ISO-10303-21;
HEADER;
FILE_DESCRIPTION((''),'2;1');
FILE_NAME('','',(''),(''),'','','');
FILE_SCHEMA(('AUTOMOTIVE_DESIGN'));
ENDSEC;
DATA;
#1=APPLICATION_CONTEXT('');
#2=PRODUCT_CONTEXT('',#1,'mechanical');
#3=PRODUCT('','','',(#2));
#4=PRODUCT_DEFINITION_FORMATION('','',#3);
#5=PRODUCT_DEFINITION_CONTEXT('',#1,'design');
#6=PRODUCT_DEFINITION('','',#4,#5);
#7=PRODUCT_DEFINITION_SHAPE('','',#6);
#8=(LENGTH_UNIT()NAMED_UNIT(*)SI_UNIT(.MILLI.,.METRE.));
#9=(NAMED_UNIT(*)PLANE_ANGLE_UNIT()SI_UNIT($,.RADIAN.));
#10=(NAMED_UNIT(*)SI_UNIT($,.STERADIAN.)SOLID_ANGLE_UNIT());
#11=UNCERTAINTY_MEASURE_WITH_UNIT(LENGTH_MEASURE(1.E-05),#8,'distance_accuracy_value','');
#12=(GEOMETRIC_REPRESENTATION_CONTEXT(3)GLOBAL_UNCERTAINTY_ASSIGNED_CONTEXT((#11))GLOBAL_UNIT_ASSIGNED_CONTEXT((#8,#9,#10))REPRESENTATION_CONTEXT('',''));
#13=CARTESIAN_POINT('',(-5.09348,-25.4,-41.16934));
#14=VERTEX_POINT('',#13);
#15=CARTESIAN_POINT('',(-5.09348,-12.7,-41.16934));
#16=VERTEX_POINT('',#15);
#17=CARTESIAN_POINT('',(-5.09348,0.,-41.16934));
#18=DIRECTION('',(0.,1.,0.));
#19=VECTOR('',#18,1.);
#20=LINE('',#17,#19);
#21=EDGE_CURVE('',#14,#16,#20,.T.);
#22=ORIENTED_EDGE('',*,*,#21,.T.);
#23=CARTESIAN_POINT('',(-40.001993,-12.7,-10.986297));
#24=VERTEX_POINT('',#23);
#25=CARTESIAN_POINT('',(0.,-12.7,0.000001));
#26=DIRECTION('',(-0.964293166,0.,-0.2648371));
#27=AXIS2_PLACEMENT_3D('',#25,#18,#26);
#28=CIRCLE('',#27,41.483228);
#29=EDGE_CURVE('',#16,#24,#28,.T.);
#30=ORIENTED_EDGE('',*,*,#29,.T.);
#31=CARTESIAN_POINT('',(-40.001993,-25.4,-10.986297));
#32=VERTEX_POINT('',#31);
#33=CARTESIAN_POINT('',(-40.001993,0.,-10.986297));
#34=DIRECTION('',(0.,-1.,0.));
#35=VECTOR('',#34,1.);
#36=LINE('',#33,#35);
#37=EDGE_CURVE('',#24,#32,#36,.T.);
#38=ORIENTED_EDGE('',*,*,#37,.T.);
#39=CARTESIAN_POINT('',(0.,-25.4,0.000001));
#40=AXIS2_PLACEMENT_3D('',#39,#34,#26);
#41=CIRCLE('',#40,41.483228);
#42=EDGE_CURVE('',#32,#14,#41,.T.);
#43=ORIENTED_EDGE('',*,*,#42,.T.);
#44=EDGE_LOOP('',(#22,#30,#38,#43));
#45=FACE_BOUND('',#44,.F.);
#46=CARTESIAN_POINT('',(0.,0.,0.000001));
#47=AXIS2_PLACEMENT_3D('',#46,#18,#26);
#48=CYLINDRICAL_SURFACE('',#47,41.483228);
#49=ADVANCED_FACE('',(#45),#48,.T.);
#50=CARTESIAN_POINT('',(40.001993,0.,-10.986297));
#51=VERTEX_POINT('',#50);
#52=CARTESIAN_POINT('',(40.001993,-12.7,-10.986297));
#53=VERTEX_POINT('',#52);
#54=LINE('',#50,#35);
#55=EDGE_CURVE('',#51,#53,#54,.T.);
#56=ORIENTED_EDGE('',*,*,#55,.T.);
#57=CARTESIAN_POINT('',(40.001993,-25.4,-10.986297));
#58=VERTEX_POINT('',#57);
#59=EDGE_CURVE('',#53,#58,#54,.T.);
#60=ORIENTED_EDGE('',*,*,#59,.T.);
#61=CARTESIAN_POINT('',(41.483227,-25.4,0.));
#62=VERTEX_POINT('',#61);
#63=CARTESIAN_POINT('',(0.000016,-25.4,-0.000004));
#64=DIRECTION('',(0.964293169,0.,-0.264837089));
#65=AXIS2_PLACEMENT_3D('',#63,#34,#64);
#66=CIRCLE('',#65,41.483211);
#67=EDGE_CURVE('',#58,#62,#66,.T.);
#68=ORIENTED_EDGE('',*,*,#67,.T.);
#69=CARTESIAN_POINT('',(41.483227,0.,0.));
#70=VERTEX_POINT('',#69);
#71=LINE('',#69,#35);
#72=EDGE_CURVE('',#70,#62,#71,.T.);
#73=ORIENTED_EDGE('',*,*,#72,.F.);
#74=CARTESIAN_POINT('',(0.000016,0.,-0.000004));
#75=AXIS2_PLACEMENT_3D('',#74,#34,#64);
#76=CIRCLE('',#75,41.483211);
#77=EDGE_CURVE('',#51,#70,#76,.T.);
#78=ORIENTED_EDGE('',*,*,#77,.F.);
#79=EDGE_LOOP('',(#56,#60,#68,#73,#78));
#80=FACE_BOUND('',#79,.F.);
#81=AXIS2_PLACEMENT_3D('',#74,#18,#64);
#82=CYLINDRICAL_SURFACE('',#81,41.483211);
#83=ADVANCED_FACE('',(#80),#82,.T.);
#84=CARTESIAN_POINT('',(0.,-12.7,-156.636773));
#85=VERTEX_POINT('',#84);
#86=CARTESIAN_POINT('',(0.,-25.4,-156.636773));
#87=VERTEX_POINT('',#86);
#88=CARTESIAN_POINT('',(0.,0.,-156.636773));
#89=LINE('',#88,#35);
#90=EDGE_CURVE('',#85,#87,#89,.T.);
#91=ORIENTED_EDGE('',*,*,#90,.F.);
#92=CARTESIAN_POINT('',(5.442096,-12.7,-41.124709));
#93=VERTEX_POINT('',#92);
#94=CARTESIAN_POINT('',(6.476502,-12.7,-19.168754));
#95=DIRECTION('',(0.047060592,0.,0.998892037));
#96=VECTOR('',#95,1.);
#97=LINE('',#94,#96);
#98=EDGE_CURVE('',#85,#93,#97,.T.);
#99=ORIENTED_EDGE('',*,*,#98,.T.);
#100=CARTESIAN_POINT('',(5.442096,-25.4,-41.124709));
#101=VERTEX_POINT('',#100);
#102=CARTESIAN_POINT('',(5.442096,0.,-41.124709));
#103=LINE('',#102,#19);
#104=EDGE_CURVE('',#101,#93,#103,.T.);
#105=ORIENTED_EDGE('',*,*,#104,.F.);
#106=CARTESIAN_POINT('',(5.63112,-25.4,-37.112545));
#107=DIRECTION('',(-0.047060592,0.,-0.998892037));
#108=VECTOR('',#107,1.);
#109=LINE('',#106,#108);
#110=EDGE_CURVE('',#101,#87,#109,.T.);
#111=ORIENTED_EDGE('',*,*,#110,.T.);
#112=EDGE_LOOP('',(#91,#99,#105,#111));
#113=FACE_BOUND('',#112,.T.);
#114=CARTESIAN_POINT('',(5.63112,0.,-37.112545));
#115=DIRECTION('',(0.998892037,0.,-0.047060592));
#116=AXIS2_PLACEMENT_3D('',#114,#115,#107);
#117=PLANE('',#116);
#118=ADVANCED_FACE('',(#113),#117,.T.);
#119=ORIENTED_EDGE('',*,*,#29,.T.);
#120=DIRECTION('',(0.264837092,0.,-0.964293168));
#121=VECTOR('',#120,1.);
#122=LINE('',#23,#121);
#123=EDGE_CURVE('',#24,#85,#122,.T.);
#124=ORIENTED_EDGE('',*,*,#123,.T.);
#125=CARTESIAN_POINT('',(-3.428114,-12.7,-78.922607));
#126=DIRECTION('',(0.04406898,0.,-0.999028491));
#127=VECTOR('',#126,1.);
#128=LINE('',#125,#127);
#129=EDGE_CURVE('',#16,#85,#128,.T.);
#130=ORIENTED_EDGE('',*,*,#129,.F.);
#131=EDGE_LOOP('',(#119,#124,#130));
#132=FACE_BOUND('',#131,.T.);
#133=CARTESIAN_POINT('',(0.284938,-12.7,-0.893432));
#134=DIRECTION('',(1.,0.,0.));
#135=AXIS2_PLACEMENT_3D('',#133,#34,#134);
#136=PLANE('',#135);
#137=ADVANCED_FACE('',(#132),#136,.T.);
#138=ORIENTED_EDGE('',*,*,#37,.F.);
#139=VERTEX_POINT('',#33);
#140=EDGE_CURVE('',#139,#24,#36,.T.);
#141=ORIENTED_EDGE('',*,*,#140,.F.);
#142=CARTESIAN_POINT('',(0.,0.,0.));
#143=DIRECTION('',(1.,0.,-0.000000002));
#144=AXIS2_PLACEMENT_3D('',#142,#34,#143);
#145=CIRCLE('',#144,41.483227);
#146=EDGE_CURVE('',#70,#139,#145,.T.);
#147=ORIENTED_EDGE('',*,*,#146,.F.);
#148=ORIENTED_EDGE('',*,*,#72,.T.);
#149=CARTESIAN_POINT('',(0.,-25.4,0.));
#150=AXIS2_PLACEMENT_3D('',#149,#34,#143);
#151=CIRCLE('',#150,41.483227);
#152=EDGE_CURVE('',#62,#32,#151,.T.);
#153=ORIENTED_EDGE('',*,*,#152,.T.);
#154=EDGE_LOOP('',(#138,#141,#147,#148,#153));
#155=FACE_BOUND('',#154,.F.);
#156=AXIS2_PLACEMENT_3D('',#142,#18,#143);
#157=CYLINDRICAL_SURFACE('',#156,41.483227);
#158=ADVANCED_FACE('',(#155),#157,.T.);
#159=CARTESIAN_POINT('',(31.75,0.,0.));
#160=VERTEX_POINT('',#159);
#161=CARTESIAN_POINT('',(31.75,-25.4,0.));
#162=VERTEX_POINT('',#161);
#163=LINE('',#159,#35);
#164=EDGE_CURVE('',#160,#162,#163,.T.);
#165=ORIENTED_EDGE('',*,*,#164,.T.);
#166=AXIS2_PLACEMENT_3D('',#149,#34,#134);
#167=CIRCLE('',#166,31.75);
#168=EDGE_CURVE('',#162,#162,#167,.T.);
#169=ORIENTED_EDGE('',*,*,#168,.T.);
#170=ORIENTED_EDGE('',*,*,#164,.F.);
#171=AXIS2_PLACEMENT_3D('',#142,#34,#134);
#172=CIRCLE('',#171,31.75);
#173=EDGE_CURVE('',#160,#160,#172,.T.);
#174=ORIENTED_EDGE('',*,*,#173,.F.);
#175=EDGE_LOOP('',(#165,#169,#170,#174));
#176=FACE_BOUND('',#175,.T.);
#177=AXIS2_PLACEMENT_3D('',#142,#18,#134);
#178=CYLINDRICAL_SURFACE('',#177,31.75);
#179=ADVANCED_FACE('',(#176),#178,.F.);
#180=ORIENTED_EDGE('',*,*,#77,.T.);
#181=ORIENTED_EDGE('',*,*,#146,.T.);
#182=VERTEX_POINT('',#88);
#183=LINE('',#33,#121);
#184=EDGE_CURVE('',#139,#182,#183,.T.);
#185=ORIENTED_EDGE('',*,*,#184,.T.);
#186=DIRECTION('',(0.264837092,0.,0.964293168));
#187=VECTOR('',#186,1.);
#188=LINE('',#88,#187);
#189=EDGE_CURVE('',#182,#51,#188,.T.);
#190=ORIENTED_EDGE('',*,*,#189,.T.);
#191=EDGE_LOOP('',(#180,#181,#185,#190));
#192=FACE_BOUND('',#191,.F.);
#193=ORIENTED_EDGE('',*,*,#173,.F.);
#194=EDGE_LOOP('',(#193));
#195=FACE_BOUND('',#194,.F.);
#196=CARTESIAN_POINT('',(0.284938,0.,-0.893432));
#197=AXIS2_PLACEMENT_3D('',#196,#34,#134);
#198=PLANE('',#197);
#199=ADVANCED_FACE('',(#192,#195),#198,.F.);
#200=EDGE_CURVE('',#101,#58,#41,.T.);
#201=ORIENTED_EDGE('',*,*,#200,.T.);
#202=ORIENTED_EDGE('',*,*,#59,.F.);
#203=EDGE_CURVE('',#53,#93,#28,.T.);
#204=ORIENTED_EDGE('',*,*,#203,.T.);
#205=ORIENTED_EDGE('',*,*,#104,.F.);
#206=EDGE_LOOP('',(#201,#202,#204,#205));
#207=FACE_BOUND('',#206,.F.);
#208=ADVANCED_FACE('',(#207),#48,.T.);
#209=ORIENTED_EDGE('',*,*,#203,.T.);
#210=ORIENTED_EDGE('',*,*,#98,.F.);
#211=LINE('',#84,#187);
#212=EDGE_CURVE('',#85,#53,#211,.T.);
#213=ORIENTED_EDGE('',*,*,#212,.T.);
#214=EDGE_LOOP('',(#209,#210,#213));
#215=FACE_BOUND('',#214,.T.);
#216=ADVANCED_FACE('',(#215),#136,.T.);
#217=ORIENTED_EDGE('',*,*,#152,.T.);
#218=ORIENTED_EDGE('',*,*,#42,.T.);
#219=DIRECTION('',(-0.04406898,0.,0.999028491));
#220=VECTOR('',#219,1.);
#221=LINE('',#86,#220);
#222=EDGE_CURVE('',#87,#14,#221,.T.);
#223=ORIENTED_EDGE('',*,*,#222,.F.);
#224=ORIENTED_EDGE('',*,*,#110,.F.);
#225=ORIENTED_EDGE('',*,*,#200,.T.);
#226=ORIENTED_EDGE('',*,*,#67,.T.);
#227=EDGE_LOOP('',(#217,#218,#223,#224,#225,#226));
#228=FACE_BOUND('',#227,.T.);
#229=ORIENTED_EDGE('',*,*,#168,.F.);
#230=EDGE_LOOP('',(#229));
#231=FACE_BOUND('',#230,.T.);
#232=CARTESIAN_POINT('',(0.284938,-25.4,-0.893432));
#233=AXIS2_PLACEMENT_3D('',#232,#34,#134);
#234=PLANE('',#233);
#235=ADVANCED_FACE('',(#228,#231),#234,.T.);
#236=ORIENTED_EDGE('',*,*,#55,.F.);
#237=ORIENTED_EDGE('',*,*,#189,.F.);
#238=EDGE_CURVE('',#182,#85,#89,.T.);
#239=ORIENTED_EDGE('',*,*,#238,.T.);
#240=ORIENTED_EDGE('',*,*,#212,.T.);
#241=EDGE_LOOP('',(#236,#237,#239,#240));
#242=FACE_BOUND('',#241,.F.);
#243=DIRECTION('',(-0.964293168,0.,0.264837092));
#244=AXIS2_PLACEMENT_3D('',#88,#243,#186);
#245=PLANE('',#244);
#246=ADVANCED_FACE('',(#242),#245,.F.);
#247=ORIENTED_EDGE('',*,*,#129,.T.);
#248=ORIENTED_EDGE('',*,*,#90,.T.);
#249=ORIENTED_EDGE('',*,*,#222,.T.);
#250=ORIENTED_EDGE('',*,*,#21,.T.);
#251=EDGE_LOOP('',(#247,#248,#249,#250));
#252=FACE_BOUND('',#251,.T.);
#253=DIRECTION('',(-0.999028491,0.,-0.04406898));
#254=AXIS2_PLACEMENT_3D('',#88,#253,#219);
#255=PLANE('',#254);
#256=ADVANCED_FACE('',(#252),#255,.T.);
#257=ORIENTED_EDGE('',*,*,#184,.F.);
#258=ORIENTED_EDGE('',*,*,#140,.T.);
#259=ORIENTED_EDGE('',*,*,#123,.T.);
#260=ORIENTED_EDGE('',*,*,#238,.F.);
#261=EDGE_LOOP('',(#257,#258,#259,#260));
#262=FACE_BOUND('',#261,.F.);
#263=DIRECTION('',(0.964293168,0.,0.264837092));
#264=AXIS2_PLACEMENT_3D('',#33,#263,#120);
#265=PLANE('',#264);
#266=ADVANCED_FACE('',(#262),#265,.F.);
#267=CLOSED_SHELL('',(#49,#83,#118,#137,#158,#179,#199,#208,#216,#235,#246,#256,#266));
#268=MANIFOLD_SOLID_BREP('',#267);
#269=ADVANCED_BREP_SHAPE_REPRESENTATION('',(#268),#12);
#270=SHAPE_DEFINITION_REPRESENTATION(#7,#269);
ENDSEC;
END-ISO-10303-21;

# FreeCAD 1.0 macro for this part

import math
import FreeCAD as App
import Part
import Sketcher
from FreeCAD import Vector
Q = App.Units.Quantity

doc = App.newDocument("Part")
body = doc.addObject("PartDesign::Body", "Body")

# Sketch on XZ plane
sketch1 = body.newObject("Sketcher::SketchObject", "Sketch")
sketch1.AttachmentSupport = (doc.getObject("XZ_Plane"), [""])
sketch1.MapMode = "FlatFace"
sketch1.addGeometry([
    Part.ArcOfCircle(Part.Circle(Vector(0.000016, -0.000004, 0), Vector(0, 0, 1), 41.483211), math.radians(-15.357273), math.radians(0.000006)),
    Part.ArcOfCircle(Part.Circle(Vector(0, 0, 0), Vector(0, 0, 1), 41.483227), math.radians(0), math.radians(195.357273)),
    Part.ArcOfCircle(Part.Circle(Vector(0, 0.000001, 0), Vector(0, 0, 1), 41.483228), math.radians(-164.642727), math.radians(-15.357273)),
    Part.Circle(Vector(0, 0, 0), Vector(0, 0, 1), 31.75),
], False)
sketch1.addConstraint([
    Sketcher.Constraint("Coincident", 0, 2, 1, 1),
    Sketcher.Constraint("Coincident", 1, 2, 2, 1),
    Sketcher.Constraint("Coincident", 2, 2, 0, 1),
    Sketcher.Constraint("Coincident", 1, 3, -1, 1),
    Sketcher.Constraint("Coincident", 2, 3, -1, 1),
    Sketcher.Constraint("Coincident", 3, 3, -1, 1),
    Sketcher.Constraint("PointOnObject", 0, 2, -1),
    Sketcher.Constraint("Diameter", 3, Q("2.5 in")),
    Sketcher.Constraint("Radius", 0, 41.483211),
    Sketcher.Constraint("Radius", 1, 41.483227),
    Sketcher.Constraint("DistanceX", 1, 2, 0, 3, 40.002009),
    Sketcher.Constraint("DistanceX", -1, 1, 2, 2, 40.001993),
])
pad1 = body.newObject("PartDesign::Pad", "Pad")
pad1.Profile = sketch1
pad1.Length = Q("1 in")

# Sketch on XZ plane
sketch2 = body.newObject("Sketcher::SketchObject", "Sketch001")
sketch2.AttachmentSupport = (doc.getObject("XZ_Plane"), [""])
sketch2.MapMode = "FlatFace"
sketch2.addGeometry([
    Part.ArcOfCircle(Part.Circle(Vector(0, 0, 0), Vector(0, 0, 1), 41), math.radians(-15.36), math.radians(0)),  # 0
    Part.ArcOfCircle(Part.Circle(Vector(0, 0, 0), Vector(0, 0, 1), 41), math.radians(0), math.radians(195)),  # 1
    Part.LineSegment(Vector(-40, -11, 0), Vector(0, -157, 0)),  # 2
    Part.LineSegment(Vector(0, -157, 0), Vector(40, -11, 0)),  # 3
    Part.Circle(Vector(0, 0, 0), Vector(0, 0, 1), 32),  # 4
], False)
sketch2.addConstraint([
    Sketcher.Constraint("Tangent", 0, 2, 1, 1),
    Sketcher.Constraint("Tangent", 1, 2, 2, 1),
    Sketcher.Constraint("Coincident", 2, 2, 3, 1),
    Sketcher.Constraint("Tangent", 3, 2, 0, 1),
    Sketcher.Constraint("Coincident", 1, 3, -1, 1),
    Sketcher.Constraint("Coincident", 4, 3, -1, 1),
    Sketcher.Constraint("Symmetric", 1, 2, 3, 2, -2),
    Sketcher.Constraint("PointOnObject", 0, 2, -1),
    Sketcher.Constraint("Diameter", 4, Q("2.5 in")),
    Sketcher.Constraint("Radius", 0, 41.483211),
    Sketcher.Constraint("Distance", 2, 151.04377),
])
pad2 = body.newObject("PartDesign::Pad", "Pad001")
pad2.Profile = sketch2
pad2.Length = Q("0.5 in")

# Sketch on XZ plane
sketch3 = body.newObject("Sketcher::SketchObject", "Sketch002")
sketch3.AttachmentSupport = (doc.getObject("XZ_Plane"), [""])
sketch3.MapMode = "FlatFace"
sketch3.addGeometry([
    Part.LineSegment(Vector(-5, -37, 0), Vector(6, -37, 0)),
    Part.LineSegment(Vector(6, -37, 0), Vector(0, -157, 0)),
    Part.LineSegment(Vector(0, -157, 0), Vector(-5, -37, 0)),
], False)
sketch3.addConstraint([
    Sketcher.Constraint("Coincident", 0, 2, 1, 1),
    Sketcher.Constraint("Coincident", 1, 2, 2, 1),
    Sketcher.Constraint("Coincident", 2, 2, 0, 1),
    Sketcher.Constraint("Horizontal", 0),
    Sketcher.Constraint("PointOnObject", 1, 2, -2),
    Sketcher.Constraint("Distance", 2, 119.64046),
    Sketcher.Constraint("DistanceX", 0, 1, 0, 2, 10.903553),
    Sketcher.Constraint("DistanceX", -1, 1, 0, 2, 5.63112),
    Sketcher.Constraint("DistanceY", 0, 2, -1, 1, 37.112545),
])
pad3 = body.newObject("PartDesign::Pad", "Pad002")
pad3.Profile = sketch3
pad3.Length = Q("1 in")

doc.recompute()
